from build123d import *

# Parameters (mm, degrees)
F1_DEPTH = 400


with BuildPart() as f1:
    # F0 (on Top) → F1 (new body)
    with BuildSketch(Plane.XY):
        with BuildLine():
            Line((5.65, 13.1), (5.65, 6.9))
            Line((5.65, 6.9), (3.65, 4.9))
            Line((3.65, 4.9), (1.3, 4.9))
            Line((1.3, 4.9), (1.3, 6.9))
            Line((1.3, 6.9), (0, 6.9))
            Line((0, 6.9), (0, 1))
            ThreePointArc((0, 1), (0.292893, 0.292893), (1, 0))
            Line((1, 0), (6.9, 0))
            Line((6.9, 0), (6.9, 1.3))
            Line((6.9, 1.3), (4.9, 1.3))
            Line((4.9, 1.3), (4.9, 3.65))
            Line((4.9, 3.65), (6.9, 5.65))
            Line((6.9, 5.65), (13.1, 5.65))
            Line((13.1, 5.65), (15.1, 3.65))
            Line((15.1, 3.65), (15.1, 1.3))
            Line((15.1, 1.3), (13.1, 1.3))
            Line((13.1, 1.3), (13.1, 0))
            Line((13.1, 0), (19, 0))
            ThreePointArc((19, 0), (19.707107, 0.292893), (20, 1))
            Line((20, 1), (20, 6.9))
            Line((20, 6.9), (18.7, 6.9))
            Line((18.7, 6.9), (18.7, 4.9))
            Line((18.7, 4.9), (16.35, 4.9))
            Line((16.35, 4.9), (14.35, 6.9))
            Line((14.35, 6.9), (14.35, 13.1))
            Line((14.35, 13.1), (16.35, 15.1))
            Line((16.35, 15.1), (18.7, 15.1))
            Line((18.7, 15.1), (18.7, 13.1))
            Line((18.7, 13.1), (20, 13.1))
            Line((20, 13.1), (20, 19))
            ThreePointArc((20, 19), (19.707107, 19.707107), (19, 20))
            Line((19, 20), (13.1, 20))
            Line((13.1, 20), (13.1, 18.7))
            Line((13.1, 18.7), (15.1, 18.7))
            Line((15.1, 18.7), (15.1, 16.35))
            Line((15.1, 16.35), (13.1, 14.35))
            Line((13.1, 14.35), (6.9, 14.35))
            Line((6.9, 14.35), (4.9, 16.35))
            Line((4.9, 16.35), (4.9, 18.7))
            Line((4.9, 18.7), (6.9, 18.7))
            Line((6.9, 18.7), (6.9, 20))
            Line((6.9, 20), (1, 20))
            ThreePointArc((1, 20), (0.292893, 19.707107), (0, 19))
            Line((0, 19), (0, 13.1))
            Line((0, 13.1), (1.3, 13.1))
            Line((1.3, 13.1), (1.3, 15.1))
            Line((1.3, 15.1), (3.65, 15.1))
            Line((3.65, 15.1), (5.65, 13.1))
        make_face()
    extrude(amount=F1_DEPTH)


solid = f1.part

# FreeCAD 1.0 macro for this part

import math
import FreeCAD as App
import Part
import Sketcher

doc = App.newDocument("Part")
body = doc.addObject("PartDesign::Body", "Body")

# Sketch on XY plane
sketch1 = doc.addObject("Sketcher::SketchObject", "Sketch")
body.addObject(sketch1)
sketch1.AttachmentSupport = (doc.XY_Plane, [""])
sketch1.MapMode = "FlatFace"
sketch1.addGeometry(Part.LineSegment(App.Vector(5.7, 13.1, 0), App.Vector(5.7, 6.9, 0)), False)
sketch1.addGeometry(Part.LineSegment(App.Vector(5.7, 6.9, 0), App.Vector(3.6, 4.9, 0)), False)
sketch1.addGeometry(Part.LineSegment(App.Vector(3.6, 4.9, 0), App.Vector(1.3, 4.9, 0)), False)
sketch1.addGeometry(Part.LineSegment(App.Vector(1.3, 4.9, 0), App.Vector(1.3, 6.9, 0)), False)
sketch1.addGeometry(Part.LineSegment(App.Vector(1.3, 6.9, 0), App.Vector(0, 6.9, 0)), False)
sketch1.addGeometry(Part.LineSegment(App.Vector(0, 6.9, 0), App.Vector(0, 1, 0)), False)
sketch1.addGeometry(Part.ArcOfCircle(Part.Circle(App.Vector(1, 1, 0), App.Vector(0, 0, 1), 1), math.radians(180), math.radians(270)), False)
sketch1.addGeometry(Part.LineSegment(App.Vector(1, 0, 0), App.Vector(6.9, 0, 0)), False)
sketch1.addGeometry(Part.LineSegment(App.Vector(6.9, 0, 0), App.Vector(6.9, 1.3, 0)), False)
sketch1.addGeometry(Part.LineSegment(App.Vector(6.9, 1.3, 0), App.Vector(4.9, 1.3, 0)), False)
sketch1.addGeometry(Part.LineSegment(App.Vector(4.9, 1.3, 0), App.Vector(4.9, 3.6, 0)), False)
sketch1.addGeometry(Part.LineSegment(App.Vector(4.9, 3.6, 0), App.Vector(6.9, 5.7, 0)), False)
sketch1.addGeometry(Part.LineSegment(App.Vector(6.9, 5.7, 0), App.Vector(13.1, 5.7, 0)), False)
sketch1.addGeometry(Part.LineSegment(App.Vector(13.1, 5.7, 0), App.Vector(15.1, 3.6, 0)), False)
sketch1.addGeometry(Part.LineSegment(App.Vector(15.1, 3.6, 0), App.Vector(15.1, 1.3, 0)), False)
sketch1.addGeometry(Part.LineSegment(App.Vector(15.1, 1.3, 0), App.Vector(13.1, 1.3, 0)), False)
sketch1.addGeometry(Part.LineSegment(App.Vector(13.1, 1.3, 0), App.Vector(13.1, 0, 0)), False)
sketch1.addGeometry(Part.LineSegment(App.Vector(13.1, 0, 0), App.Vector(19, 0, 0)), False)
sketch1.addGeometry(Part.ArcOfCircle(Part.Circle(App.Vector(19, 1, 0), App.Vector(0, 0, 1), 1), math.radians(-90), math.radians(0)), False)
sketch1.addGeometry(Part.LineSegment(App.Vector(20, 1, 0), App.Vector(20, 6.9, 0)), False)
sketch1.addGeometry(Part.LineSegment(App.Vector(20, 6.9, 0), App.Vector(18.7, 6.9, 0)), False)
sketch1.addGeometry(Part.LineSegment(App.Vector(18.7, 6.9, 0), App.Vector(18.7, 4.9, 0)), False)
sketch1.addGeometry(Part.LineSegment(App.Vector(18.7, 4.9, 0), App.Vector(16.4, 4.9, 0)), False)
sketch1.addGeometry(Part.LineSegment(App.Vector(16.4, 4.9, 0), App.Vector(14.3, 6.9, 0)), False)
sketch1.addGeometry(Part.LineSegment(App.Vector(14.3, 6.9, 0), App.Vector(14.3, 13.1, 0)), False)
sketch1.addGeometry(Part.LineSegment(App.Vector(14.3, 13.1, 0), App.Vector(16.4, 15.1, 0)), False)
sketch1.addGeometry(Part.LineSegment(App.Vector(16.4, 15.1, 0), App.Vector(18.7, 15.1, 0)), False)
sketch1.addGeometry(Part.LineSegment(App.Vector(18.7, 15.1, 0), App.Vector(18.7, 13.1, 0)), False)
sketch1.addGeometry(Part.LineSegment(App.Vector(18.7, 13.1, 0), App.Vector(20, 13.1, 0)), False)
sketch1.addGeometry(Part.LineSegment(App.Vector(20, 13.1, 0), App.Vector(20, 19, 0)), False)
sketch1.addGeometry(Part.ArcOfCircle(Part.Circle(App.Vector(19, 19, 0), App.Vector(0, 0, 1), 1), math.radians(0), math.radians(90)), False)
sketch1.addGeometry(Part.LineSegment(App.Vector(19, 20, 0), App.Vector(13.1, 20, 0)), False)
sketch1.addGeometry(Part.LineSegment(App.Vector(13.1, 20, 0), App.Vector(13.1, 18.7, 0)), False)
sketch1.addGeometry(Part.LineSegment(App.Vector(13.1, 18.7, 0), App.Vector(15.1, 18.7, 0)), False)
sketch1.addGeometry(Part.LineSegment(App.Vector(15.1, 18.7, 0), App.Vector(15.1, 16.4, 0)), False)
sketch1.addGeometry(Part.LineSegment(App.Vector(15.1, 16.4, 0), App.Vector(13.1, 14.3, 0)), False)
sketch1.addGeometry(Part.LineSegment(App.Vector(13.1, 14.3, 0), App.Vector(6.9, 14.3, 0)), False)
sketch1.addGeometry(Part.LineSegment(App.Vector(6.9, 14.3, 0), App.Vector(4.9, 16.4, 0)), False)
sketch1.addGeometry(Part.LineSegment(App.Vector(4.9, 16.4, 0), App.Vector(4.9, 18.7, 0)), False)
sketch1.addGeometry(Part.LineSegment(App.Vector(4.9, 18.7, 0), App.Vector(6.9, 18.7, 0)), False)
sketch1.addGeometry(Part.LineSegment(App.Vector(6.9, 18.7, 0), App.Vector(6.9, 20, 0)), False)
sketch1.addGeometry(Part.LineSegment(App.Vector(6.9, 20, 0), App.Vector(1, 20, 0)), False)
sketch1.addGeometry(Part.ArcOfCircle(Part.Circle(App.Vector(1, 19, 0), App.Vector(0, 0, 1), 1), math.radians(90), math.radians(180)), False)
sketch1.addGeometry(Part.LineSegment(App.Vector(0, 19, 0), App.Vector(0, 13.1, 0)), False)
sketch1.addGeometry(Part.LineSegment(App.Vector(0, 13.1, 0), App.Vector(1.3, 13.1, 0)), False)
sketch1.addGeometry(Part.LineSegment(App.Vector(1.3, 13.1, 0), App.Vector(1.3, 15.1, 0)), False)
sketch1.addGeometry(Part.LineSegment(App.Vector(1.3, 15.1, 0), App.Vector(3.6, 15.1, 0)), False)
sketch1.addGeometry(Part.LineSegment(App.Vector(3.6, 15.1, 0), App.Vector(5.7, 13.1, 0)), False)
sketch1.addConstraint(Sketcher.Constraint("Coincident", 0, 2, 1, 1))
sketch1.addConstraint(Sketcher.Constraint("Coincident", 1, 2, 2, 1))
sketch1.addConstraint(Sketcher.Constraint("Coincident", 2, 2, 3, 1))
sketch1.addConstraint(Sketcher.Constraint("Coincident", 3, 2, 4, 1))
sketch1.addConstraint(Sketcher.Constraint("Coincident", 4, 2, 5, 1))
sketch1.addConstraint(Sketcher.Constraint("Tangent", 5, 2, 6, 1))
sketch1.addConstraint(Sketcher.Constraint("Tangent", 6, 2, 7, 1))
sketch1.addConstraint(Sketcher.Constraint("Coincident", 7, 2, 8, 1))
sketch1.addConstraint(Sketcher.Constraint("Coincident", 8, 2, 9, 1))
sketch1.addConstraint(Sketcher.Constraint("Coincident", 9, 2, 10, 1))
sketch1.addConstraint(Sketcher.Constraint("Coincident", 10, 2, 11, 1))
sketch1.addConstraint(Sketcher.Constraint("Coincident", 11, 2, 12, 1))
sketch1.addConstraint(Sketcher.Constraint("Coincident", 12, 2, 13, 1))
sketch1.addConstraint(Sketcher.Constraint("Coincident", 13, 2, 14, 1))
sketch1.addConstraint(Sketcher.Constraint("Coincident", 14, 2, 15, 1))
sketch1.addConstraint(Sketcher.Constraint("Coincident", 15, 2, 16, 1))
sketch1.addConstraint(Sketcher.Constraint("Coincident", 16, 2, 17, 1))
sketch1.addConstraint(Sketcher.Constraint("Tangent", 17, 2, 18, 1))
sketch1.addConstraint(Sketcher.Constraint("Tangent", 18, 2, 19, 1))
sketch1.addConstraint(Sketcher.Constraint("Coincident", 19, 2, 20, 1))
sketch1.addConstraint(Sketcher.Constraint("Coincident", 20, 2, 21, 1))
sketch1.addConstraint(Sketcher.Constraint("Coincident", 21, 2, 22, 1))
sketch1.addConstraint(Sketcher.Constraint("Coincident", 22, 2, 23, 1))
sketch1.addConstraint(Sketcher.Constraint("Coincident", 23, 2, 24, 1))
sketch1.addConstraint(Sketcher.Constraint("Coincident", 24, 2, 25, 1))
sketch1.addConstraint(Sketcher.Constraint("Coincident", 25, 2, 26, 1))
sketch1.addConstraint(Sketcher.Constraint("Coincident", 26, 2, 27, 1))
sketch1.addConstraint(Sketcher.Constraint("Coincident", 27, 2, 28, 1))
sketch1.addConstraint(Sketcher.Constraint("Coincident", 28, 2, 29, 1))
sketch1.addConstraint(Sketcher.Constraint("Tangent", 29, 2, 30, 1))
sketch1.addConstraint(Sketcher.Constraint("Tangent", 30, 2, 31, 1))
sketch1.addConstraint(Sketcher.Constraint("Coincident", 31, 2, 32, 1))
sketch1.addConstraint(Sketcher.Constraint("Coincident", 32, 2, 33, 1))
sketch1.addConstraint(Sketcher.Constraint("Coincident", 33, 2, 34, 1))
sketch1.addConstraint(Sketcher.Constraint("Coincident", 34, 2, 35, 1))
sketch1.addConstraint(Sketcher.Constraint("Coincident", 35, 2, 36, 1))
sketch1.addConstraint(Sketcher.Constraint("Coincident", 36, 2, 37, 1))
sketch1.addConstraint(Sketcher.Constraint("Coincident", 37, 2, 38, 1))
sketch1.addConstraint(Sketcher.Constraint("Coincident", 38, 2, 39, 1))
sketch1.addConstraint(Sketcher.Constraint("Coincident", 39, 2, 40, 1))
sketch1.addConstraint(Sketcher.Constraint("Coincident", 40, 2, 41, 1))
sketch1.addConstraint(Sketcher.Constraint("Tangent", 41, 2, 42, 1))
sketch1.addConstraint(Sketcher.Constraint("Tangent", 42, 2, 43, 1))
sketch1.addConstraint(Sketcher.Constraint("Coincident", 43, 2, 44, 1))
sketch1.addConstraint(Sketcher.Constraint("Coincident", 44, 2, 45, 1))
sketch1.addConstraint(Sketcher.Constraint("Coincident", 45, 2, 46, 1))
sketch1.addConstraint(Sketcher.Constraint("Coincident", 46, 2, 47, 1))
sketch1.addConstraint(Sketcher.Constraint("Coincident", 47, 2, 0, 1))
sketch1.addConstraint(Sketcher.Constraint("Vertical", 0))
sketch1.addConstraint(Sketcher.Constraint("Horizontal", 2))
sketch1.addConstraint(Sketcher.Constraint("Vertical", 3))
sketch1.addConstraint(Sketcher.Constraint("Horizontal", 4))
sketch1.addConstraint(Sketcher.Constraint("Vertical", 5))
sketch1.addConstraint(Sketcher.Constraint("Horizontal", 7))
sketch1.addConstraint(Sketcher.Constraint("Vertical", 8))
sketch1.addConstraint(Sketcher.Constraint("Horizontal", 9))
sketch1.addConstraint(Sketcher.Constraint("Vertical", 10))
sketch1.addConstraint(Sketcher.Constraint("Horizontal", 12))
sketch1.addConstraint(Sketcher.Constraint("Vertical", 14))
sketch1.addConstraint(Sketcher.Constraint("Horizontal", 15))
sketch1.addConstraint(Sketcher.Constraint("Vertical", 16))
sketch1.addConstraint(Sketcher.Constraint("Horizontal", 17))
sketch1.addConstraint(Sketcher.Constraint("Vertical", 19))
sketch1.addConstraint(Sketcher.Constraint("Horizontal", 20))
sketch1.addConstraint(Sketcher.Constraint("Vertical", 21))
sketch1.addConstraint(Sketcher.Constraint("Horizontal", 22))
sketch1.addConstraint(Sketcher.Constraint("Vertical", 24))
sketch1.addConstraint(Sketcher.Constraint("Horizontal", 26))
sketch1.addConstraint(Sketcher.Constraint("Vertical", 27))
sketch1.addConstraint(Sketcher.Constraint("Horizontal", 28))
sketch1.addConstraint(Sketcher.Constraint("Vertical", 29))
sketch1.addConstraint(Sketcher.Constraint("Horizontal", 31))
sketch1.addConstraint(Sketcher.Constraint("Vertical", 32))
sketch1.addConstraint(Sketcher.Constraint("Horizontal", 33))
sketch1.addConstraint(Sketcher.Constraint("Vertical", 34))
sketch1.addConstraint(Sketcher.Constraint("Horizontal", 36))
sketch1.addConstraint(Sketcher.Constraint("Vertical", 38))
sketch1.addConstraint(Sketcher.Constraint("Horizontal", 39))
sketch1.addConstraint(Sketcher.Constraint("Vertical", 40))
sketch1.addConstraint(Sketcher.Constraint("Horizontal", 41))
sketch1.addConstraint(Sketcher.Constraint("Vertical", 43))
sketch1.addConstraint(Sketcher.Constraint("Horizontal", 44))
sketch1.addConstraint(Sketcher.Constraint("Vertical", 45))
sketch1.addConstraint(Sketcher.Constraint("Horizontal", 46))
sketch1.addConstraint(Sketcher.Constraint("Equal", 6, 18))
sketch1.addConstraint(Sketcher.Constraint("Equal", 18, 30))
sketch1.addConstraint(Sketcher.Constraint("Equal", 30, 42))
sketch1.addConstraint(Sketcher.Constraint("PointOnObject", 4, 2, -2))
sketch1.addConstraint(Sketcher.Constraint("PointOnObject", 6, 2, -1))
sketch1.addConstraint(Sketcher.Constraint("PointOnObject", 16, 2, -1))
sketch1.addConstraint(Sketcher.Constraint("PointOnObject", 42, 2, -2))
sketch1.addConstraint(Sketcher.Constraint("Parallel", 1, 11))
sketch1.addConstraint(Sketcher.Constraint("Perpendicular", 11, 13))
sketch1.addConstraint(Sketcher.Constraint("Parallel", 13, 23))
sketch1.addConstraint(Sketcher.Constraint("Perpendicular", 23, 25))
sketch1.addConstraint(Sketcher.Constraint("Parallel", 25, 35))
sketch1.addConstraint(Sketcher.Constraint("Perpendicular", 35, 37))
sketch1.addConstraint(Sketcher.Constraint("Parallel", 37, 47))
sketch1.addConstraint(Sketcher.Constraint("Horizontal", 30, 3, 42, 3))
sketch1.addConstraint(Sketcher.Constraint("Horizontal", 0, 2, 3, 2))
sketch1.addConstraint(Sketcher.Constraint("Horizontal", 10, 2, 13, 2))
sketch1.addConstraint(Sketcher.Constraint("Horizontal", 9, 2, 14, 2))
sketch1.addConstraint(Sketcher.Constraint("Horizontal", 4, 2, 19, 2))
sketch1.addConstraint(Sketcher.Constraint("Horizontal", 2, 2, 21, 2))
sketch1.addConstraint(Sketcher.Constraint("Horizontal", 20, 2, 23, 2))
sketch1.addConstraint(Sketcher.Constraint("Horizontal", 24, 2, 27, 2))
sketch1.addConstraint(Sketcher.Constraint("Horizontal", 34, 2, 37, 2))
sketch1.addConstraint(Sketcher.Constraint("Horizontal", 33, 2, 38, 2))
sketch1.addConstraint(Sketcher.Constraint("Horizontal", 28, 2, 43, 2))
sketch1.addConstraint(Sketcher.Constraint("Horizontal", 26, 2, 45, 2))
sketch1.addConstraint(Sketcher.Constraint("Horizontal", 44, 2, 47, 2))
sketch1.addConstraint(Sketcher.Constraint("Vertical", 18, 3, 30, 3))
sketch1.addConstraint(Sketcher.Constraint("Vertical", 8, 2, 11, 2))
sketch1.addConstraint(Sketcher.Constraint("Vertical", 12, 2, 15, 2))
sketch1.addConstraint(Sketcher.Constraint("Vertical", 22, 2, 25, 2))
sketch1.addConstraint(Sketcher.Constraint("Vertical", 21, 2, 26, 2))
sketch1.addConstraint(Sketcher.Constraint("Vertical", 16, 2, 31, 2))
sketch1.addConstraint(Sketcher.Constraint("Vertical", 14, 2, 33, 2))
sketch1.addConstraint(Sketcher.Constraint("Vertical", 32, 2, 35, 2))
sketch1.addConstraint(Sketcher.Constraint("Vertical", 11, 2, 36, 2))
sketch1.addConstraint(Sketcher.Constraint("Vertical", 10, 2, 37, 2))
sketch1.addConstraint(Sketcher.Constraint("Vertical", 36, 2, 39, 2))
sketch1.addConstraint(Sketcher.Constraint("Vertical", 3, 2, 44, 2))
sketch1.addConstraint(Sketcher.Constraint("Equal", 7, 17))
sketch1.addConstraint(Sketcher.Constraint("Equal", 4, 20))
sketch1.addConstraint(Sketcher.Constraint("Equal", 2, 22))
sketch1.addConstraint(Sketcher.Constraint("Equal", 36, 0))
sketch1.addConstraint(Sketcher.Constraint("Equal", 39, 3))
sketch1.addConstraint(Sketcher.Constraint("Equal", 41, 5))
sketch1.addConstraint(Sketcher.Constraint("Equal", 44, 8))
sketch1.addConstraint(Sketcher.Constraint("Equal", 46, 10))
sketch1.addConstraint(Sketcher.Constraint("Equal", 19, 29))
sketch1.addConstraint(Sketcher.Constraint("Equal", 16, 32))
sketch1.addConstraint(Sketcher.Constraint("Equal", 14, 34))
sketch1.addConstraint(Sketcher.Constraint("Radius", 6, 0.999999))
sketch1.addConstraint(Sketcher.Constraint("DistanceX", 9, 2, 9, 1, 2.0))
sketch1.addConstraint(Sketcher.Constraint("DistanceX", 4, 2, 4, 1, 1.3))
sketch1.addConstraint(Sketcher.Constraint("DistanceX", 7, 1, 7, 2, 5.9))
sketch1.addConstraint(Sketcher.Constraint("DistanceX", 12, 1, 12, 2, 6.2))
sketch1.addConstraint(Sketcher.Constraint("DistanceX", 2, 2, 2, 1, 2.35))
pad1 = doc.addObject("PartDesign::Pad", "Pad")
body.addObject(pad1)
pad1.Profile = sketch1
pad1.Length = 400

doc.recompute()
